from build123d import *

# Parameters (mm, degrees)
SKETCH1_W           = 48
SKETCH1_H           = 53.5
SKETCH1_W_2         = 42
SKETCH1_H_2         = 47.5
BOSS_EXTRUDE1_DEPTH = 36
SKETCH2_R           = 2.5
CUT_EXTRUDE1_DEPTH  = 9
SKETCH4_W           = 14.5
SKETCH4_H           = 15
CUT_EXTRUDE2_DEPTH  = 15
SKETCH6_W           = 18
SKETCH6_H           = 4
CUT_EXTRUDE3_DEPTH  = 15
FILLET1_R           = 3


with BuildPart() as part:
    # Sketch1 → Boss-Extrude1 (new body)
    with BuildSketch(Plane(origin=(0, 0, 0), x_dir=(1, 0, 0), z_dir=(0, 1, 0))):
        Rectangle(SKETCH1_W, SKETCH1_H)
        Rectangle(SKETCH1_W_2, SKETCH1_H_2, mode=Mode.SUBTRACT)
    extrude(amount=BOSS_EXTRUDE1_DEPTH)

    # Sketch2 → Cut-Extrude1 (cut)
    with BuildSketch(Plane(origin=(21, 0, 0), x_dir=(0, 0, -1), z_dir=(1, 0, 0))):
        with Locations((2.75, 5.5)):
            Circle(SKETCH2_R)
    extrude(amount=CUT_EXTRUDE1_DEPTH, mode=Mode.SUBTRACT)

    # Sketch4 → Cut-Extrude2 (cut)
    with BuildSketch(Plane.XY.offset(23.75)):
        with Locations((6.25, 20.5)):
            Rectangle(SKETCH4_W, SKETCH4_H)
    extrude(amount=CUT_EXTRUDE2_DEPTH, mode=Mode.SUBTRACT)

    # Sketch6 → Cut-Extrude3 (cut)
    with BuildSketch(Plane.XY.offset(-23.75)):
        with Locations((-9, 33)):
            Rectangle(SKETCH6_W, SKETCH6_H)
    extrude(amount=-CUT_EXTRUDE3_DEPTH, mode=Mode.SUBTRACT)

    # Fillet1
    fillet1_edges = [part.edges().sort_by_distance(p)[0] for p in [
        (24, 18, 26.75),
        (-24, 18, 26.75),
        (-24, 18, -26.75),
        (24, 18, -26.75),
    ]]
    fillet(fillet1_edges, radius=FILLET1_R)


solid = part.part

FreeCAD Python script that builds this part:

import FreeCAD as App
import Part
import Sketcher

V = App.Vector


def edges_at(feature, points):
    """Names of the edges that pass closest to the given points."""
    edges = feature.Shape.Edges
    near = lambda p: min(range(len(edges)), key=lambda i: edges[i].distToShape(Part.Vertex(*p))[0])
    return sorted({f"Edge{near(p) + 1}" for p in points})

doc = App.newDocument("Part")
params = doc.addObject("Spreadsheet::Sheet", "Params")
for row, (alias, value) in enumerate([
    ("sketch1_width", "48 mm"),
    ("sketch1_width2", "42 mm"),
    ("sketch1_height", "53.5 mm"),
    ("sketch1_height2", "47.5 mm"),
    ("pad1_length", "36 mm"),
    ("sketch2_diameter", "5 mm"),
    ("pocket1_length", "9 mm"),
    ("sketch3_height", "15 mm"),
    ("sketch3_width", "14.5 mm"),
    ("pocket2_length", "15 mm"),
    ("sketch4_width", "18 mm"),
    ("sketch4_height", "4 mm"),
    ("pocket3_length", "15 mm"),
    ("fillet_radius", "3 mm"),
], start=1):
    params.set(f"A{row}", alias)
    params.set(f"B{row}", "=" + value)
    params.setAlias(f"B{row}", alias)

body = doc.addObject("PartDesign::Body", "Body")

sketch1 = body.newObject("Sketcher::SketchObject", "Sketch")
sketch1.AttachmentSupport = (doc.getObject("XZ_Plane"), [""])
sketch1.MapMode = "FlatFace"
sketch1.addGeometry(Part.LineSegment(V(-24, -27, 0), V(-24, 27, 0)), False)
sketch1.addGeometry(Part.LineSegment(V(-24, 27, 0), V(24, 27, 0)), False)
sketch1.addGeometry(Part.LineSegment(V(24, 27, 0), V(24, -27, 0)), False)
sketch1.addGeometry(Part.LineSegment(V(24, -27, 0), V(-24, -27, 0)), False)
sketch1.addGeometry(Part.LineSegment(V(21, 24, 0), V(-21, 24, 0)), False)
sketch1.addGeometry(Part.LineSegment(V(-21, 24, 0), V(-21, -24, 0)), False)
sketch1.addGeometry(Part.LineSegment(V(-21, -24, 0), V(21, -24, 0)), False)
sketch1.addGeometry(Part.LineSegment(V(21, -24, 0), V(21, 24, 0)), False)
sketch1.addConstraint(Sketcher.Constraint("Coincident", 0, 2, 1, 1))
sketch1.addConstraint(Sketcher.Constraint("Coincident", 1, 2, 2, 1))
sketch1.addConstraint(Sketcher.Constraint("Coincident", 2, 2, 3, 1))
sketch1.addConstraint(Sketcher.Constraint("Coincident", 3, 2, 0, 1))
sketch1.addConstraint(Sketcher.Constraint("Coincident", 4, 2, 5, 1))
sketch1.addConstraint(Sketcher.Constraint("Coincident", 5, 2, 6, 1))
sketch1.addConstraint(Sketcher.Constraint("Coincident", 6, 2, 7, 1))
sketch1.addConstraint(Sketcher.Constraint("Coincident", 7, 2, 4, 1))
sketch1.addConstraint(Sketcher.Constraint("Vertical", 0))
sketch1.addConstraint(Sketcher.Constraint("Horizontal", 1))
sketch1.addConstraint(Sketcher.Constraint("Vertical", 2))
sketch1.addConstraint(Sketcher.Constraint("Horizontal", 3))
sketch1.addConstraint(Sketcher.Constraint("Horizontal", 4))
sketch1.addConstraint(Sketcher.Constraint("Vertical", 5))
sketch1.addConstraint(Sketcher.Constraint("Horizontal", 6))
sketch1.addConstraint(Sketcher.Constraint("Vertical", 7))
sketch1.addConstraint(Sketcher.Constraint("Symmetric", 0, 2, 2, 2, -1, 1))
sketch1.addConstraint(Sketcher.Constraint("Symmetric", 4, 2, 6, 2, -1, 1))
sketch1.addConstraint(Sketcher.Constraint("DistanceX", 1, 1, 1, 2, 48.0))
sketch1.addConstraint(Sketcher.Constraint("DistanceX", 4, 2, 4, 1, 42.0))
sketch1.addConstraint(Sketcher.Constraint("DistanceY", 0, 1, 0, 2, 53.5))
sketch1.addConstraint(Sketcher.Constraint("DistanceY", 5, 2, 5, 1, 47.5))
sketch1.setExpression("Constraints[18]", "Params.sketch1_width")
sketch1.setExpression("Constraints[19]", "Params.sketch1_width2")
sketch1.setExpression("Constraints[20]", "Params.sketch1_height")
sketch1.setExpression("Constraints[21]", "Params.sketch1_height2")
pad1 = body.newObject("PartDesign::Pad", "Pad")
pad1.Profile = sketch1
pad1.setExpression("Length", "Params.pad1_length")
pad1.Reversed = True

sketch2 = body.newObject("Sketcher::SketchObject", "Sketch001")
sketch2.AttachmentSupport = (doc.getObject("YZ_Plane"), [""])
sketch2.MapMode = "FlatFace"
sketch2.AttachmentOffset = App.Placement(V(0, 0, 21), App.Rotation())
sketch2.addGeometry(Part.Circle(V(5.5, -2.8, 0), V(0, 0, 1), 2.5), False)
sketch2.addConstraint(Sketcher.Constraint("Diameter", 0, 5.0))
sketch2.addConstraint(Sketcher.Constraint("DistanceX", -1, 1, 0, 3, 5.5))
sketch2.addConstraint(Sketcher.Constraint("DistanceY", 0, 3, -1, 1, 2.75))
sketch2.setExpression("Constraints[0]", "Params.sketch2_diameter")
pocket1 = body.newObject("PartDesign::Pocket", "Pocket")
pocket1.Profile = sketch2
pocket1.setExpression("Length", "Params.pocket1_length")
pocket1.Reversed = True

sketch3 = body.newObject("Sketcher::SketchObject", "Sketch002")
sketch3.AttachmentSupport = (doc.getObject("XY_Plane"), [""])
sketch3.MapMode = "FlatFace"
sketch3.AttachmentOffset = App.Placement(V(0, 0, 23.75), App.Rotation())
sketch3.addGeometry(Part.LineSegment(V(-1, 28, 0), V(-1, 13, 0)), False)
sketch3.addGeometry(Part.LineSegment(V(-1, 13, 0), V(14, 13, 0)), False)
sketch3.addGeometry(Part.LineSegment(V(14, 13, 0), V(14, 28, 0)), False)
sketch3.addGeometry(Part.LineSegment(V(14, 28, 0), V(-1, 28, 0)), False)
sketch3.addConstraint(Sketcher.Constraint("Coincident", 0, 2, 1, 1))
sketch3.addConstraint(Sketcher.Constraint("Coincident", 1, 2, 2, 1))
sketch3.addConstraint(Sketcher.Constraint("Coincident", 2, 2, 3, 1))
sketch3.addConstraint(Sketcher.Constraint("Coincident", 3, 2, 0, 1))
sketch3.addConstraint(Sketcher.Constraint("Vertical", 0))
sketch3.addConstraint(Sketcher.Constraint("Horizontal", 1))
sketch3.addConstraint(Sketcher.Constraint("Vertical", 2))
sketch3.addConstraint(Sketcher.Constraint("Horizontal", 3))
sketch3.addConstraint(Sketcher.Constraint("DistanceY", 0, 2, 0, 1, 15.0))
sketch3.addConstraint(Sketcher.Constraint("DistanceX", 1, 1, 1, 2, 14.5))
sketch3.addConstraint(Sketcher.Constraint("DistanceX", 0, 2, -1, 1, 1.0))
sketch3.addConstraint(Sketcher.Constraint("DistanceY", -1, 1, 0, 2, 13.0))
sketch3.setExpression("Constraints[8]", "Params.sketch3_height")
sketch3.setExpression("Constraints[9]", "Params.sketch3_width")
pocket2 = body.newObject("PartDesign::Pocket", "Pocket001")
pocket2.Profile = sketch3
pocket2.setExpression("Length", "Params.pocket2_length")
pocket2.Reversed = True

sketch4 = body.newObject("Sketcher::SketchObject", "Sketch003")
sketch4.AttachmentSupport = (doc.getObject("XY_Plane"), [""])
sketch4.MapMode = "FlatFace"
sketch4.AttachmentOffset = App.Placement(V(0, 0, -23.75), App.Rotation())
sketch4.addGeometry(Part.LineSegment(V(-18, 35, 0), V(-18, 31, 0)), False)
sketch4.addGeometry(Part.LineSegment(V(-18, 31, 0), V(0, 31, 0)), False)
sketch4.addGeometry(Part.LineSegment(V(0, 31, 0), V(0, 35, 0)), False)
sketch4.addGeometry(Part.LineSegment(V(0, 35, 0), V(-18, 35, 0)), False)
sketch4.addConstraint(Sketcher.Constraint("Coincident", 0, 2, 1, 1))
sketch4.addConstraint(Sketcher.Constraint("Coincident", 1, 2, 2, 1))
sketch4.addConstraint(Sketcher.Constraint("Coincident", 2, 2, 3, 1))
sketch4.addConstraint(Sketcher.Constraint("Coincident", 3, 2, 0, 1))
sketch4.addConstraint(Sketcher.Constraint("Vertical", 0))
sketch4.addConstraint(Sketcher.Constraint("Horizontal", 1))
sketch4.addConstraint(Sketcher.Constraint("Vertical", 2))
sketch4.addConstraint(Sketcher.Constraint("Horizontal", 3))
sketch4.addConstraint(Sketcher.Constraint("PointOnObject", 1, 2, -2))
sketch4.addConstraint(Sketcher.Constraint("DistanceX", 1, 1, 1, 2, 18.0))
sketch4.addConstraint(Sketcher.Constraint("DistanceY", 0, 2, 0, 1, 4.0))
sketch4.addConstraint(Sketcher.Constraint("DistanceY", -1, 1, 0, 2, 31.0))
sketch4.setExpression("Constraints[9]", "Params.sketch4_width")
sketch4.setExpression("Constraints[10]", "Params.sketch4_height")
pocket3 = body.newObject("PartDesign::Pocket", "Pocket002")
pocket3.Profile = sketch4
pocket3.setExpression("Length", "Params.pocket3_length")
doc.recompute()

fillet = body.newObject("PartDesign::Fillet", "Fillet")
fillet.Base = (pocket3, edges_at(pocket3, [
    (24, 18, 26.75),
    (-24, 18, 26.75),
    (-24, 18, -26.75),
    (24, 18, -26.75),
]))
fillet.setExpression("Radius", "Params.fillet_radius")

doc.recompute()
